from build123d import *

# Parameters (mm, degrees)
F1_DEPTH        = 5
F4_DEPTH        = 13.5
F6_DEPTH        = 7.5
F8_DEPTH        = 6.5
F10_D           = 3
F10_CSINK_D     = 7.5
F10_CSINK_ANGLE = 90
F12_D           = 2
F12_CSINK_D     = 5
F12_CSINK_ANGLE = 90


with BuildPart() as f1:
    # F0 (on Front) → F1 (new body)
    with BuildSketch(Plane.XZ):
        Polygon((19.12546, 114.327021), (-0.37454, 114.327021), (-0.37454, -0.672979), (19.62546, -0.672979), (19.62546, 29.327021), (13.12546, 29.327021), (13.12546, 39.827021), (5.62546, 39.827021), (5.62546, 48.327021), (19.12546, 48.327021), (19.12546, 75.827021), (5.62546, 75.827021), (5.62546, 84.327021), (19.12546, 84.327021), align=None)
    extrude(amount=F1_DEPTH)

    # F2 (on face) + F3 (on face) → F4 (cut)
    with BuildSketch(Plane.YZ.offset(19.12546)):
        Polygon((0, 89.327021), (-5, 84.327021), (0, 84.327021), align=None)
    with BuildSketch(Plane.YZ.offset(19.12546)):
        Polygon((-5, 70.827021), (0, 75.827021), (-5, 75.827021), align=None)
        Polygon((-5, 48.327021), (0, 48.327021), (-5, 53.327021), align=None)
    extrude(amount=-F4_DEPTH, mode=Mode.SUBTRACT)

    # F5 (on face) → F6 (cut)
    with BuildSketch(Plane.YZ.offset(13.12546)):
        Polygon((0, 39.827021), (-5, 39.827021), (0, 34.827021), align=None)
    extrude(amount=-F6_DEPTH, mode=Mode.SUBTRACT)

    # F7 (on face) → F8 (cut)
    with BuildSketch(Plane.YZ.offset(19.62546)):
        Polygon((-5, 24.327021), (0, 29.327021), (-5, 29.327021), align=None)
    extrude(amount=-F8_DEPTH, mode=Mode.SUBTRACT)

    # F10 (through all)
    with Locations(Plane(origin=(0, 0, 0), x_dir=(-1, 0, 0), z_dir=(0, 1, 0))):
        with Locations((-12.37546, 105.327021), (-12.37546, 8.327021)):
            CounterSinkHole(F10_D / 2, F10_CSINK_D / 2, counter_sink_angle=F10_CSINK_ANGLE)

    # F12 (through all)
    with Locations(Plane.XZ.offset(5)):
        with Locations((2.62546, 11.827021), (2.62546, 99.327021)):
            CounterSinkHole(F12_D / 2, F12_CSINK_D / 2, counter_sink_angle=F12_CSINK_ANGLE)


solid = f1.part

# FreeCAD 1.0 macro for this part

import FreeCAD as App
import Part
import Sketcher
Q = App.Units.Quantity


def add_polygon(sketch, points):
    """Adds a closed chain of lines whose ends are joined by coincident constraints."""
    first, n = sketch.GeometryCount, len(points)
    for a, b in zip(points, points[1:] + points[:1]):
        sketch.addGeometry(Part.LineSegment(App.Vector(*a, 0), App.Vector(*b, 0)), False)
    for i in range(n):
        sketch.addConstraint(Sketcher.Constraint("Coincident", first + i, 2, first + (i + 1) % n, 1))

doc = App.newDocument("Part")
body = doc.addObject("PartDesign::Body", "Body")

# Sketch on XZ plane
sketch1 = body.newObject("Sketcher::SketchObject", "Sketch")
sketch1.AttachmentSupport = (doc.getObject("XZ_Plane"), [""])
sketch1.MapMode = "FlatFace"
add_polygon(sketch1, [(19, 114), (0, 114), (0, -1), (20, -1), (20, 29), (13, 29), (13, 40), (6, 40), (6, 48), (19, 48), (19, 76), (6, 76), (6, 84), (19, 84)])  # lines 0-13
sketch1.addConstraint([
    Sketcher.Constraint("Horizontal", 0),
    Sketcher.Constraint("Vertical", 1),
    Sketcher.Constraint("Horizontal", 2),
    Sketcher.Constraint("Vertical", 3),
    Sketcher.Constraint("Horizontal", 4),
    Sketcher.Constraint("Vertical", 5),
    Sketcher.Constraint("Horizontal", 6),
    Sketcher.Constraint("Vertical", 7),
    Sketcher.Constraint("Horizontal", 8),
    Sketcher.Constraint("Vertical", 9),
    Sketcher.Constraint("Horizontal", 10),
    Sketcher.Constraint("Vertical", 11),
    Sketcher.Constraint("Horizontal", 12),
    Sketcher.Constraint("Vertical", 13),
    Sketcher.Constraint("Vertical", 7, 2, 10, 2),
    Sketcher.Constraint("Vertical", 9, 2, 12, 2),
    Sketcher.Constraint("Equal", 7, 11),
    Sketcher.Constraint("Equal", 3, 13),
    Sketcher.Constraint("DistanceX", 2, 1, 2, 2, Q("20 mm")),
    Sketcher.Constraint("DistanceY", 1, 2, 1, 1, Q("115 mm")),
    Sketcher.Constraint("DistanceY", 3, 1, 3, 2, Q("30 mm")),
    Sketcher.Constraint("DistanceX", 0, 2, 0, 1, Q("19.5 mm")),
    Sketcher.Constraint("DistanceX", 4, 2, 4, 1, Q("6.5 mm")),
    Sketcher.Constraint("DistanceX", 6, 2, 6, 1, Q("7.5 mm")),
    Sketcher.Constraint("DistanceY", 5, 1, 5, 2, Q("10.5 mm")),
    Sketcher.Constraint("DistanceY", 7, 1, 7, 2, Q("8.5 mm")),
    Sketcher.Constraint("DistanceX", 0, 2, -1, 1, Q("0.37454 mm")),
    Sketcher.Constraint("DistanceY", -1, 1, 0, 2, Q("114.327021 mm")),
])
pad1 = body.newObject("PartDesign::Pad", "Pad")
pad1.Profile = sketch1
pad1.Length = 5

# Sketch on YZ plane
sketch2 = body.newObject("Sketcher::SketchObject", "Sketch001")
sketch2.AttachmentSupport = (doc.getObject("YZ_Plane"), [""])
sketch2.MapMode = "FlatFace"
sketch2.AttachmentOffset = App.Placement(App.Vector(0, 0, 19.12546), App.Rotation())
add_polygon(sketch2, [(0, 89), (-5, 84), (0, 84)])  # lines 0-2
add_polygon(sketch2, [(-5, 71), (0, 76), (-5, 76)])  # lines 3-5
add_polygon(sketch2, [(-5, 48), (0, 48), (-5, 53)])  # lines 6-8
sketch2.addConstraint([
    Sketcher.Constraint("Horizontal", 1),
    Sketcher.Constraint("Vertical", 2),
    Sketcher.Constraint("Horizontal", 4),
    Sketcher.Constraint("Vertical", 5),
    Sketcher.Constraint("Horizontal", 6),
    Sketcher.Constraint("Vertical", 8),
    Sketcher.Constraint("PointOnObject", 1, 2, -2),
    Sketcher.Constraint("PointOnObject", 3, 2, -2),
    Sketcher.Constraint("PointOnObject", 6, 2, -2),
    Sketcher.Constraint("Parallel", 0, 3),
    Sketcher.Constraint("Perpendicular", 3, 7),
    Sketcher.Constraint("Vertical", 0, 2, 4, 2),
    Sketcher.Constraint("Vertical", 5, 2, 7, 2),
    Sketcher.Constraint("Equal", 6, 2),
    Sketcher.Constraint("DistanceX", 1, 1, 1, 2, Q("5 mm")),
    Sketcher.Constraint("DistanceY", 6, 2, 1, 2, Q("36 mm")),
    Sketcher.Constraint("DistanceY", 3, 2, 1, 2, Q("8.5 mm")),
    Sketcher.Constraint("DistanceY", -1, 1, 0, 2, Q("84.327021 mm")),
])
pocket1 = body.newObject("PartDesign::Pocket", "Pocket")
pocket1.Profile = sketch2
pocket1.Length = 13.5

# Sketch on YZ plane
sketch3 = body.newObject("Sketcher::SketchObject", "Sketch002")
sketch3.AttachmentSupport = (doc.getObject("YZ_Plane"), [""])
sketch3.MapMode = "FlatFace"
sketch3.AttachmentOffset = App.Placement(App.Vector(0, 0, 13.12546), App.Rotation())
add_polygon(sketch3, [(0, 40), (-5, 40), (0, 35)])  # lines 0-2
sketch3.addConstraint([
    Sketcher.Constraint("Horizontal", 0),
    Sketcher.Constraint("Vertical", 2),
    Sketcher.Constraint("PointOnObject", 1, 2, -2),
    Sketcher.Constraint("Equal", 0, 2),
    Sketcher.Constraint("DistanceX", 0, 2, 0, 1, Q("5 mm")),
    Sketcher.Constraint("DistanceY", -1, 1, 0, 2, Q("39.827021 mm")),
])
pocket2 = body.newObject("PartDesign::Pocket", "Pocket001")
pocket2.Profile = sketch3
pocket2.Length = 7.5

# Sketch on YZ plane
sketch4 = body.newObject("Sketcher::SketchObject", "Sketch003")
sketch4.AttachmentSupport = (doc.getObject("YZ_Plane"), [""])
sketch4.MapMode = "FlatFace"
sketch4.AttachmentOffset = App.Placement(App.Vector(0, 0, 19.62546), App.Rotation())
add_polygon(sketch4, [(-5, 24), (0, 29), (-5, 29)])  # lines 0-2
sketch4.addConstraint([
    Sketcher.Constraint("Horizontal", 1),
    Sketcher.Constraint("Vertical", 2),
    Sketcher.Constraint("PointOnObject", 0, 2, -2),
    Sketcher.Constraint("Equal", 1, 2),
    Sketcher.Constraint("DistanceX", 1, 2, 1, 1, Q("5 mm")),
    Sketcher.Constraint("DistanceY", -1, 1, 0, 2, Q("29.327021 mm")),
])
pocket3 = body.newObject("PartDesign::Pocket", "Pocket002")
pocket3.Profile = sketch4
pocket3.Length = 6.5

# Sketch on XZ plane
sketch5 = body.newObject("Sketcher::SketchObject", "Sketch004")
sketch5.AttachmentSupport = (doc.getObject("XZ_Plane"), [""])
sketch5.MapMode = "FlatFace"
sketch5.addGeometry([
    Part.Circle(App.Vector(12.4, 105.3, 0), App.Vector(0, 0, 1), 1.5),
    Part.Circle(App.Vector(12.4, 8.3, 0), App.Vector(0, 0, 1), 1.5),
], False)
sketch5.addConstraint([
    Sketcher.Constraint("Equal", 0, 1),
    Sketcher.Constraint("Vertical", 0, 3, 1, 3),
    Sketcher.Constraint("Diameter", 0, Q("3 mm")),
    Sketcher.Constraint("DistanceY", 1, 3, 0, 3, Q("97 mm")),
    Sketcher.Constraint("DistanceX", -1, 1, 0, 3, Q("12.37546 mm")),
    Sketcher.Constraint("DistanceY", -1, 1, 0, 3, Q("105.327021 mm")),
])
doc.recompute()
hole = body.newObject("PartDesign::Hole", "Hole")
hole.Profile = sketch5
hole.ThreadType = "None"
hole.Diameter = 3
hole.DepthType = "ThroughAll"
hole.HoleCutType = "Countersink"
hole.HoleCutDiameter = 7.5
hole.HoleCutCountersinkAngle = 90
hole.Reversed = True

# Sketch on XZ plane
sketch6 = body.newObject("Sketcher::SketchObject", "Sketch005")
sketch6.AttachmentSupport = (doc.getObject("XZ_Plane"), [""])
sketch6.MapMode = "FlatFace"
sketch6.AttachmentOffset = App.Placement(App.Vector(0, 0, 5), App.Rotation())
sketch6.addGeometry([
    Part.Circle(App.Vector(2.6, 11.8, 0), App.Vector(0, 0, 1), 1),
    Part.Circle(App.Vector(2.6, 99.3, 0), App.Vector(0, 0, 1), 1),
], False)
sketch6.addConstraint([
    Sketcher.Constraint("Equal", 0, 1),
    Sketcher.Constraint("Vertical", 0, 3, 1, 3),
    Sketcher.Constraint("Diameter", 0, Q("2 mm")),
    Sketcher.Constraint("DistanceY", 0, 3, 1, 3, Q("87.5 mm")),
    Sketcher.Constraint("DistanceX", -1, 1, 0, 3, Q("2.62546 mm")),
    Sketcher.Constraint("DistanceY", -1, 1, 0, 3, Q("11.827021 mm")),
])
doc.recompute()
hole2 = body.newObject("PartDesign::Hole", "Hole001")
hole2.Profile = sketch6
hole2.ThreadType = "None"
hole2.Diameter = 2
hole2.DepthType = "ThroughAll"
hole2.HoleCutType = "Countersink"
hole2.HoleCutDiameter = 5
hole2.HoleCutCountersinkAngle = 90

doc.recompute()
